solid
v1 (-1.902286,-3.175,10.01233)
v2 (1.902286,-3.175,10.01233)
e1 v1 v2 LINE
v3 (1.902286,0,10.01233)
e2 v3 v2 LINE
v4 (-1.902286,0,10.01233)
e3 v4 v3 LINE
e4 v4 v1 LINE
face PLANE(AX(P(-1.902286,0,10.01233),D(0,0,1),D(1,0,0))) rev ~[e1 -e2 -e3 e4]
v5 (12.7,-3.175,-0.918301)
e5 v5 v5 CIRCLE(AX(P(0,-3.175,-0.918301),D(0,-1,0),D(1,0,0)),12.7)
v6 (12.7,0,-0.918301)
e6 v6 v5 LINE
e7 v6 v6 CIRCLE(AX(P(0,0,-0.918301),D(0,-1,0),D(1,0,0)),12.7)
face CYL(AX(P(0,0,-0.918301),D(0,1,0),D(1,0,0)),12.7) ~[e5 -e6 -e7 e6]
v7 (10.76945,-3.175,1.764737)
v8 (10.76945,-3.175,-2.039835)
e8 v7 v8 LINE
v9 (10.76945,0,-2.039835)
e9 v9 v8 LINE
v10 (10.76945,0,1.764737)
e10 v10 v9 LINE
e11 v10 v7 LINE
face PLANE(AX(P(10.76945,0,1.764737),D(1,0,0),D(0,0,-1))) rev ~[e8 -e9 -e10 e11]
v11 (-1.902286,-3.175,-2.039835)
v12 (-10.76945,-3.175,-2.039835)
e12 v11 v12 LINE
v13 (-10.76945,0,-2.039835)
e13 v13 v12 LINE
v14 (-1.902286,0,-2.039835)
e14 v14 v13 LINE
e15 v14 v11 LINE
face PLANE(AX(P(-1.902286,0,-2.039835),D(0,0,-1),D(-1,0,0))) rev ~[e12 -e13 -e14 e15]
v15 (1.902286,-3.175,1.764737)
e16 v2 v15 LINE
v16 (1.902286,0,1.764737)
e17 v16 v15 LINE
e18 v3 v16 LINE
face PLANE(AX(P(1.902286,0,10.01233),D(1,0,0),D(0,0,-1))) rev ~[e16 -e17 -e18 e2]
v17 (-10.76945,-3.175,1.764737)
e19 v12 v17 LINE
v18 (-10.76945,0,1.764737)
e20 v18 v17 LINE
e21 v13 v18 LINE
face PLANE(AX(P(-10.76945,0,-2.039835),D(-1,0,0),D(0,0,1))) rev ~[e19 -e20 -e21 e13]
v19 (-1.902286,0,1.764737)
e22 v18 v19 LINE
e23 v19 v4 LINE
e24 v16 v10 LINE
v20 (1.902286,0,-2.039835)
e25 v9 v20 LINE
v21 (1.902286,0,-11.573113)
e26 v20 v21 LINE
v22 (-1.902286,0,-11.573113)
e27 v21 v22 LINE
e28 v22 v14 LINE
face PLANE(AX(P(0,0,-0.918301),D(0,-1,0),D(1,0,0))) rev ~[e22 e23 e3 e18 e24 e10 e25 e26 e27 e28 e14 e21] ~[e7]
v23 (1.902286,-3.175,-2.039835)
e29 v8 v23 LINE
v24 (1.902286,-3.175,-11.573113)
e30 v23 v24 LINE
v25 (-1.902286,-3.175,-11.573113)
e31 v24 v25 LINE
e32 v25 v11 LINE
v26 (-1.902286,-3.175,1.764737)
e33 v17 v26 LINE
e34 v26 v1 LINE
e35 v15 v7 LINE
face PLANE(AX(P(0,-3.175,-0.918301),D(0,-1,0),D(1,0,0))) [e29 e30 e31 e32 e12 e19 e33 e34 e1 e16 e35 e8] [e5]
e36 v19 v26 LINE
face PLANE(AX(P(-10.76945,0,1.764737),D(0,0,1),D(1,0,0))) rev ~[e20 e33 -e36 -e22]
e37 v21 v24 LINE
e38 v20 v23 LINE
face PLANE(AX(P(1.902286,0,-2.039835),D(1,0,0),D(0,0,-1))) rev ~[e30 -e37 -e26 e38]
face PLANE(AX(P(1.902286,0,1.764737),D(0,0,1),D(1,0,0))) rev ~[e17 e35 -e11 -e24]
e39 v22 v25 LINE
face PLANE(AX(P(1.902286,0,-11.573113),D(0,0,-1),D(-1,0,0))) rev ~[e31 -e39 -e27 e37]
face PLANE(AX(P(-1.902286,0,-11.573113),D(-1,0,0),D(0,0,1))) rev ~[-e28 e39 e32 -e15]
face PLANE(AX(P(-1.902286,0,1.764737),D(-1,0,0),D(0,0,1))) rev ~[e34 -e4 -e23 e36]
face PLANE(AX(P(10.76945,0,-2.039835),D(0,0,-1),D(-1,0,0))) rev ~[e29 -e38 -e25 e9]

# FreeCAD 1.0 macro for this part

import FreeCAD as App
import Part
import Sketcher

V = App.Vector
Q = App.Units.Quantity


def add_polygon(sketch, points):
    """Adds a closed chain of lines whose ends are joined by coincident constraints."""
    first, n = sketch.GeometryCount, len(points)
    for a, b in zip(points, points[1:] + points[:1]):
        sketch.addGeometry(Part.LineSegment(App.Vector(*a, 0), App.Vector(*b, 0)), False)
    for i in range(n):
        sketch.addConstraint(Sketcher.Constraint("Coincident", first + i, 2, first + (i + 1) % n, 1))

doc = App.newDocument("Part")
body = doc.addObject("PartDesign::Body", "Body")

# Sketch on XZ plane
sketch1 = doc.addObject("Sketcher::SketchObject", "Sketch")
body.addObject(sketch1)
sketch1.AttachmentSupport = (doc.XZ_Plane, [""])
sketch1.MapMode = "FlatFace"
sketch1.addGeometry(Part.Circle(V(0, -0.9, 0), V(0, 0, 1), 12.7), False)  # 0
add_polygon(sketch1, [(-1.9, -2), (-10.8, -2), (-10.8, 1.8), (-1.9, 1.8), (-1.9, 10), (1.9, 10), (1.9, 1.8), (10.8, 1.8), (10.8, -2), (1.9, -2), (1.9, -11.6), (-1.9, -11.6)])  # lines 1-12
sketch1.addConstraint([
    Sketcher.Constraint("Horizontal", 1),
    Sketcher.Constraint("Vertical", 2),
    Sketcher.Constraint("Horizontal", 3),
    Sketcher.Constraint("Vertical", 4),
    Sketcher.Constraint("Horizontal", 5),
    Sketcher.Constraint("Vertical", 6),
    Sketcher.Constraint("Horizontal", 7),
    Sketcher.Constraint("Vertical", 8),
    Sketcher.Constraint("Horizontal", 9),
    Sketcher.Constraint("Vertical", 10),
    Sketcher.Constraint("Horizontal", 11),
    Sketcher.Constraint("Vertical", 12),
    Sketcher.Constraint("Symmetric", 3, 2, 6, 2, -2),
    Sketcher.Constraint("Symmetric", 1, 2, 8, 2, -2),
    Sketcher.Constraint("PointOnObject", 0, 3, -2),
    Sketcher.Constraint("Vertical", 6, 2, 9, 2),
    Sketcher.Constraint("Vertical", 4, 2, 11, 2),
    Sketcher.Constraint("Equal", 11, 2),
    Sketcher.Constraint("Diameter", 0, Q("1 in")),
    Sketcher.Constraint("DistanceX", 5, 1, 5, 2, 3.804572),
    Sketcher.Constraint("DistanceY", 0, 3, -1, 1, 0.918301),
    Sketcher.Constraint("DistanceX", 1, 2, 1, 1, 8.867164),
    Sketcher.Constraint("DistanceY", 4, 1, 4, 2, 8.247593),
    Sketcher.Constraint("DistanceY", 10, 2, 10, 1, 9.533278),
    Sketcher.Constraint("DistanceY", -1, 1, 4, 2, 10.01233),
])
pad1 = doc.addObject("PartDesign::Pad", "Pad")
body.addObject(pad1)
pad1.Profile = sketch1
pad1.Length = Q("0.125 in")

doc.recompute()
